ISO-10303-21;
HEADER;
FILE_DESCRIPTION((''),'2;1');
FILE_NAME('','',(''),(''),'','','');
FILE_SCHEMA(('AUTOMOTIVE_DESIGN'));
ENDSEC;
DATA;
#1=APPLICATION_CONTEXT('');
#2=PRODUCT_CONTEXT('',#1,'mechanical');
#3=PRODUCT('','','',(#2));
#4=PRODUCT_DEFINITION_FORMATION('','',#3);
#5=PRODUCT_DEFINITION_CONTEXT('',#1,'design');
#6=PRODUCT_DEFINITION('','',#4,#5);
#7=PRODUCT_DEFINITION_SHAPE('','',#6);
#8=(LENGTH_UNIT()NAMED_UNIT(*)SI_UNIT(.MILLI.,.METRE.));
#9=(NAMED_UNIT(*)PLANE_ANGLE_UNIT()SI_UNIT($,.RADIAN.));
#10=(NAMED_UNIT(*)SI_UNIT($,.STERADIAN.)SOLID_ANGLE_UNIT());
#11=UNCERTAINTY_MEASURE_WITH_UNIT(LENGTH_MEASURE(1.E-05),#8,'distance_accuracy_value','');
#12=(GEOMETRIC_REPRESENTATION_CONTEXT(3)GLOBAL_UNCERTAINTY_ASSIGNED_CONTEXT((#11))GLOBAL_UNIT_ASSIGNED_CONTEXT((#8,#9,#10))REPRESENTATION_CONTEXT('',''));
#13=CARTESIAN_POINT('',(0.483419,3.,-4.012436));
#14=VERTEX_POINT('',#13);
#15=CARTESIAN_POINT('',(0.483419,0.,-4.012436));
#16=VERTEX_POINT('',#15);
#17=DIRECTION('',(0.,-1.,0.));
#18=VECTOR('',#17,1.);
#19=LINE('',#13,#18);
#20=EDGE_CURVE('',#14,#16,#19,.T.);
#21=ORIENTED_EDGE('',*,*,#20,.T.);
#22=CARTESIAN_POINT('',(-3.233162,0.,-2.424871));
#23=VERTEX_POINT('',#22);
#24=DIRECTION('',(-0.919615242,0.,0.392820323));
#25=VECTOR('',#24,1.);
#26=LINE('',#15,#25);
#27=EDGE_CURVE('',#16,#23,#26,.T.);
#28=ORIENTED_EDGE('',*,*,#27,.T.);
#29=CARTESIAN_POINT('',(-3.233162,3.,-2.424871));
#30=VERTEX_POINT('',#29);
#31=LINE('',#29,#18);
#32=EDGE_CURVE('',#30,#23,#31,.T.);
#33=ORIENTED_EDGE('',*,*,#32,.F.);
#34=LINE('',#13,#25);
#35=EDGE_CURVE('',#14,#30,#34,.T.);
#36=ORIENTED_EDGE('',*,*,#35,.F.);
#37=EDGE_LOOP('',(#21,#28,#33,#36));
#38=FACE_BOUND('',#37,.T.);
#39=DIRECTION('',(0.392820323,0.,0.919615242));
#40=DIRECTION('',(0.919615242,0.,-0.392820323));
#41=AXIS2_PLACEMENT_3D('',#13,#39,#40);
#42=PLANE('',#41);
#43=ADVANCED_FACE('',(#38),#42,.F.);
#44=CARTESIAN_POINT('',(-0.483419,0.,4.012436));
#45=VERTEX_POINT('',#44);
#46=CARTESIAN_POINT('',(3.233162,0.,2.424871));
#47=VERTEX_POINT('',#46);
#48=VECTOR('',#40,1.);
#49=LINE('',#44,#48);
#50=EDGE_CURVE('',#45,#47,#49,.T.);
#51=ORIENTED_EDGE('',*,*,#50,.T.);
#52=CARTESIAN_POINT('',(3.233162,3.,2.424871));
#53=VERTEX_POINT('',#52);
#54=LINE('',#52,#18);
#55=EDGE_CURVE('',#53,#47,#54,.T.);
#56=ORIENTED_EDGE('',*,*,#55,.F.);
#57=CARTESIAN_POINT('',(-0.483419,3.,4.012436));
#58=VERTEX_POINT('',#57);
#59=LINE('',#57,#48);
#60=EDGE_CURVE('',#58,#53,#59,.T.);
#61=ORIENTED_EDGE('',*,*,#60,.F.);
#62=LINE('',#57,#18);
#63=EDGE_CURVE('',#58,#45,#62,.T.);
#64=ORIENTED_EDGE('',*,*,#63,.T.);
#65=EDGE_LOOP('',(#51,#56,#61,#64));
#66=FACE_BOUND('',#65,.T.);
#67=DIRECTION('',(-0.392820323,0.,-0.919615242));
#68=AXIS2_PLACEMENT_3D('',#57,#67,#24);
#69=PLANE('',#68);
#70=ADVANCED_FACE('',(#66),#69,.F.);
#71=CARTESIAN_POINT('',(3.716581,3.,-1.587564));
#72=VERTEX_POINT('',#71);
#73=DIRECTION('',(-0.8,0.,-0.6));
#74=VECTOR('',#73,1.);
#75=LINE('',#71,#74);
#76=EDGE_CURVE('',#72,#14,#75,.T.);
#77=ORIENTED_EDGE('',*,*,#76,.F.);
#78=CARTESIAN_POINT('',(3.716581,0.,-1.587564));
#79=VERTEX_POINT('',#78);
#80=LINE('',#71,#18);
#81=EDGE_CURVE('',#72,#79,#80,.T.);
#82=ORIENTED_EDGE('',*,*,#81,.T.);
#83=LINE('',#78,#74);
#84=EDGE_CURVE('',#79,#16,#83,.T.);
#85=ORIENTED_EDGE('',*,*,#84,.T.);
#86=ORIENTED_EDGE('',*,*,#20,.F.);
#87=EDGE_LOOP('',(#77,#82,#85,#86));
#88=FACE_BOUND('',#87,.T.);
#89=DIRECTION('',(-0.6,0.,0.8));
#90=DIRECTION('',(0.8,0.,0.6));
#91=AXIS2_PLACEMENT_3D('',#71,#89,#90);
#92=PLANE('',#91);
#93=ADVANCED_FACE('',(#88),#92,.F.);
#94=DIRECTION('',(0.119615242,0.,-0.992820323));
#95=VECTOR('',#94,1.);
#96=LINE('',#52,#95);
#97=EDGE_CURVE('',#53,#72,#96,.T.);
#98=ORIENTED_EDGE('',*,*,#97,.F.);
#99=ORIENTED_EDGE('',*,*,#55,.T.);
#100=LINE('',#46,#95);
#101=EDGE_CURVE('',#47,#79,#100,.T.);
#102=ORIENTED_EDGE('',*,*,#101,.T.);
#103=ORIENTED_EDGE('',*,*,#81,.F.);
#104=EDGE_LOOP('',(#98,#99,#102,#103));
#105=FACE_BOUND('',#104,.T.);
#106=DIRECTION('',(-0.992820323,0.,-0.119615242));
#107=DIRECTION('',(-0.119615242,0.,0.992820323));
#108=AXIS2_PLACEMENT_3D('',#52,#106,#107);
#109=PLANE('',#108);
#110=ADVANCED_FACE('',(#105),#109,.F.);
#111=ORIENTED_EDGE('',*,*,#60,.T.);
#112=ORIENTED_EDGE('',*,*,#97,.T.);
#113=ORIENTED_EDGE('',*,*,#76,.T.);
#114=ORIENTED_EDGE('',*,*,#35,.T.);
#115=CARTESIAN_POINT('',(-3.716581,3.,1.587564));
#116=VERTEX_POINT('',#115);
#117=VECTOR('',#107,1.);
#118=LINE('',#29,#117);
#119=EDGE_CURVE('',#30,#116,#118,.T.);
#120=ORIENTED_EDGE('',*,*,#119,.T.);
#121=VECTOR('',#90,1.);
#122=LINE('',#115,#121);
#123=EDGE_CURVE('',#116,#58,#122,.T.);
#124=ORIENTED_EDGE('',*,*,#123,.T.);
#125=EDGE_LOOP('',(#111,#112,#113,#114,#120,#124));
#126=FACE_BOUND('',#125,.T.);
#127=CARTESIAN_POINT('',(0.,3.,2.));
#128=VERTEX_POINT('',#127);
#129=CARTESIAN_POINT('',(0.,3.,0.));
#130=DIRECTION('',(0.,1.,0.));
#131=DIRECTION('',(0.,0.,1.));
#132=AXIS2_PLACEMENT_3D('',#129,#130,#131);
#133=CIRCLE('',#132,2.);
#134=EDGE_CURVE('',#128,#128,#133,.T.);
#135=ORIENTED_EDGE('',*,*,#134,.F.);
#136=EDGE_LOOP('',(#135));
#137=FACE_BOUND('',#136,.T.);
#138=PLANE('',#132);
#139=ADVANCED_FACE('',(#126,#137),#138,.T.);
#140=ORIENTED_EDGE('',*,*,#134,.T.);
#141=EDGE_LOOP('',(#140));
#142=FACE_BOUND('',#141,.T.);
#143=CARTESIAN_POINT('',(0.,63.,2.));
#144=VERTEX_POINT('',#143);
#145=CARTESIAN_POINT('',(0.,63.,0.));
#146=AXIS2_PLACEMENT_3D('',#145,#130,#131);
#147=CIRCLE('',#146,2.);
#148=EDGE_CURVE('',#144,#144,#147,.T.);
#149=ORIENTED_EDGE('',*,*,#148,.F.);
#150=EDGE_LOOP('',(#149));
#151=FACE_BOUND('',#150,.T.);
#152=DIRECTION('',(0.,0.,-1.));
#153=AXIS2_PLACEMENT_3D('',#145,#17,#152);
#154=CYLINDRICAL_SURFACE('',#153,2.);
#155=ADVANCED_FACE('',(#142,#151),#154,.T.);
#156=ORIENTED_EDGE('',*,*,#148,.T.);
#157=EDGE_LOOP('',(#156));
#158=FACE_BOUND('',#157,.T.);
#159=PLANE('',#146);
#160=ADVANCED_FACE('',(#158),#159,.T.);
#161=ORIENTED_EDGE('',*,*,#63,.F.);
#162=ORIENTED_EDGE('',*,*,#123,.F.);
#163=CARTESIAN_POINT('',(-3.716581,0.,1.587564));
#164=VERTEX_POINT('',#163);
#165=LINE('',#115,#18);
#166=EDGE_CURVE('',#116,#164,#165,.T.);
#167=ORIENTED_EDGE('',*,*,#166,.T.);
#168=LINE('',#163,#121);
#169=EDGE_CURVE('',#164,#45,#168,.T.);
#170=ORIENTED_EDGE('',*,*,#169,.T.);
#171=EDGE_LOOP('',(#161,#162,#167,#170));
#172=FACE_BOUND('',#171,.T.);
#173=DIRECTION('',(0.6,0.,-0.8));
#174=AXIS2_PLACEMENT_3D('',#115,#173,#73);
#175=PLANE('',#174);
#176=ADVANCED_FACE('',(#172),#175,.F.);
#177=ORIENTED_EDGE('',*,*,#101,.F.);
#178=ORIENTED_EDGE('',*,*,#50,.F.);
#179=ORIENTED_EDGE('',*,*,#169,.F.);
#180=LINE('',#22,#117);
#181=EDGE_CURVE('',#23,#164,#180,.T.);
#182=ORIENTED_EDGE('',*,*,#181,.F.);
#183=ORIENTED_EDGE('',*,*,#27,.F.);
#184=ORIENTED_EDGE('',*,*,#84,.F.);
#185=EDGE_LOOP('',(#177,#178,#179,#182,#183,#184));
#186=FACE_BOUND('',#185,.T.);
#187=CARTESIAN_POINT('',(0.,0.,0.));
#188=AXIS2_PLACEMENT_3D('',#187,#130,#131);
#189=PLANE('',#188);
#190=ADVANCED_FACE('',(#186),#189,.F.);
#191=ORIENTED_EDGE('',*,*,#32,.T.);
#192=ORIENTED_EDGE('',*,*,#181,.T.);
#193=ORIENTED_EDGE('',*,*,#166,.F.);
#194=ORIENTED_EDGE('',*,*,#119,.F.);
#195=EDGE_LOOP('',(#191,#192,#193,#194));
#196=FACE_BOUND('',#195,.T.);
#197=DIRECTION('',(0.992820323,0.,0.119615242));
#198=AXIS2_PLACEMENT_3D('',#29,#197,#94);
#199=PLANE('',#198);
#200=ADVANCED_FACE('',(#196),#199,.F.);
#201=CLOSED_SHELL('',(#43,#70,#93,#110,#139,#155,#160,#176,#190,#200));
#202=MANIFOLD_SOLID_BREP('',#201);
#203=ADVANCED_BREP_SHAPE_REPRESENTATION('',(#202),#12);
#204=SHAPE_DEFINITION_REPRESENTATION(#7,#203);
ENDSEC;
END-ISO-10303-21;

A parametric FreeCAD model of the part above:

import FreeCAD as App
import Part
import Sketcher

V = App.Vector
Q = App.Units.Quantity

doc = App.newDocument("Part")
body = doc.addObject("PartDesign::Body", "Body")

sketch1 = doc.addObject("Sketcher::SketchObject", "Sketch")
body.addObject(sketch1)
sketch1.AttachmentSupport = (doc.XZ_Plane, [""])
sketch1.MapMode = "FlatFace"
sketch1.addGeometry([
    Part.LineSegment(V(3.2, 2.4, 0), V(3.7, -1.6, 0)),
    Part.LineSegment(V(3.7, -1.6, 0), V(0.5, -4, 0)),
    Part.LineSegment(V(0.5, -4, 0), V(-3.2, -2.4, 0)),
    Part.LineSegment(V(-3.2, -2.4, 0), V(-3.7, 1.6, 0)),
    Part.LineSegment(V(-3.7, 1.6, 0), V(-0.5, 4, 0)),
    Part.LineSegment(V(-0.5, 4, 0), V(3.2, 2.4, 0)),
], False)
sketch1.addConstraint([
    Sketcher.Constraint("Coincident", 0, 2, 1, 1),
    Sketcher.Constraint("Coincident", 1, 2, 2, 1),
    Sketcher.Constraint("Coincident", 2, 2, 3, 1),
    Sketcher.Constraint("Coincident", 3, 2, 4, 1),
    Sketcher.Constraint("Coincident", 4, 2, 5, 1),
    Sketcher.Constraint("Coincident", 5, 2, 0, 1),
    Sketcher.Constraint("Symmetric", 0, 2, 3, 2, -1, 1),
    Sketcher.Constraint("Symmetric", 1, 2, 4, 2, -1, 1),
    Sketcher.Constraint("Symmetric", 2, 2, 5, 2, -1, 1),
    Sketcher.Constraint("Equal", 0, 1),
    Sketcher.Constraint("Equal", 1, 2),
    Sketcher.Constraint("DistanceX", 3, 2, 1, 2, Q("4.2 mm")),
    Sketcher.Constraint("DistanceY", 1, 2, 3, 2, Q("5.6 mm")),
    Sketcher.Constraint("Distance", 0, Q("4.041452 mm")),
    Sketcher.Constraint("DistanceX", -1, 1, 0, 2, Q("3.716581 mm")),
])
pad1 = doc.addObject("PartDesign::Pad", "Pad")
body.addObject(pad1)
pad1.Profile = sketch1
pad1.Length = 3
pad1.Reversed = True

sketch2 = doc.addObject("Sketcher::SketchObject", "Sketch001")
body.addObject(sketch2)
sketch2.AttachmentSupport = (doc.XZ_Plane, [""])
sketch2.MapMode = "FlatFace"
sketch2.AttachmentOffset = App.Placement(V(0, 0, -3), App.Rotation())
sketch2.addGeometry(Part.Circle(V(0, 0, 0), V(0, 0, 1), 2), False)
sketch2.addConstraint([
    Sketcher.Constraint("Coincident", 0, 3, -1, 1),
    Sketcher.Constraint("Diameter", 0, Q("4 mm")),
])
pad2 = doc.addObject("PartDesign::Pad", "Pad001")
body.addObject(pad2)
pad2.Profile = sketch2
pad2.Length = 60
pad2.Reversed = True

doc.recompute()
